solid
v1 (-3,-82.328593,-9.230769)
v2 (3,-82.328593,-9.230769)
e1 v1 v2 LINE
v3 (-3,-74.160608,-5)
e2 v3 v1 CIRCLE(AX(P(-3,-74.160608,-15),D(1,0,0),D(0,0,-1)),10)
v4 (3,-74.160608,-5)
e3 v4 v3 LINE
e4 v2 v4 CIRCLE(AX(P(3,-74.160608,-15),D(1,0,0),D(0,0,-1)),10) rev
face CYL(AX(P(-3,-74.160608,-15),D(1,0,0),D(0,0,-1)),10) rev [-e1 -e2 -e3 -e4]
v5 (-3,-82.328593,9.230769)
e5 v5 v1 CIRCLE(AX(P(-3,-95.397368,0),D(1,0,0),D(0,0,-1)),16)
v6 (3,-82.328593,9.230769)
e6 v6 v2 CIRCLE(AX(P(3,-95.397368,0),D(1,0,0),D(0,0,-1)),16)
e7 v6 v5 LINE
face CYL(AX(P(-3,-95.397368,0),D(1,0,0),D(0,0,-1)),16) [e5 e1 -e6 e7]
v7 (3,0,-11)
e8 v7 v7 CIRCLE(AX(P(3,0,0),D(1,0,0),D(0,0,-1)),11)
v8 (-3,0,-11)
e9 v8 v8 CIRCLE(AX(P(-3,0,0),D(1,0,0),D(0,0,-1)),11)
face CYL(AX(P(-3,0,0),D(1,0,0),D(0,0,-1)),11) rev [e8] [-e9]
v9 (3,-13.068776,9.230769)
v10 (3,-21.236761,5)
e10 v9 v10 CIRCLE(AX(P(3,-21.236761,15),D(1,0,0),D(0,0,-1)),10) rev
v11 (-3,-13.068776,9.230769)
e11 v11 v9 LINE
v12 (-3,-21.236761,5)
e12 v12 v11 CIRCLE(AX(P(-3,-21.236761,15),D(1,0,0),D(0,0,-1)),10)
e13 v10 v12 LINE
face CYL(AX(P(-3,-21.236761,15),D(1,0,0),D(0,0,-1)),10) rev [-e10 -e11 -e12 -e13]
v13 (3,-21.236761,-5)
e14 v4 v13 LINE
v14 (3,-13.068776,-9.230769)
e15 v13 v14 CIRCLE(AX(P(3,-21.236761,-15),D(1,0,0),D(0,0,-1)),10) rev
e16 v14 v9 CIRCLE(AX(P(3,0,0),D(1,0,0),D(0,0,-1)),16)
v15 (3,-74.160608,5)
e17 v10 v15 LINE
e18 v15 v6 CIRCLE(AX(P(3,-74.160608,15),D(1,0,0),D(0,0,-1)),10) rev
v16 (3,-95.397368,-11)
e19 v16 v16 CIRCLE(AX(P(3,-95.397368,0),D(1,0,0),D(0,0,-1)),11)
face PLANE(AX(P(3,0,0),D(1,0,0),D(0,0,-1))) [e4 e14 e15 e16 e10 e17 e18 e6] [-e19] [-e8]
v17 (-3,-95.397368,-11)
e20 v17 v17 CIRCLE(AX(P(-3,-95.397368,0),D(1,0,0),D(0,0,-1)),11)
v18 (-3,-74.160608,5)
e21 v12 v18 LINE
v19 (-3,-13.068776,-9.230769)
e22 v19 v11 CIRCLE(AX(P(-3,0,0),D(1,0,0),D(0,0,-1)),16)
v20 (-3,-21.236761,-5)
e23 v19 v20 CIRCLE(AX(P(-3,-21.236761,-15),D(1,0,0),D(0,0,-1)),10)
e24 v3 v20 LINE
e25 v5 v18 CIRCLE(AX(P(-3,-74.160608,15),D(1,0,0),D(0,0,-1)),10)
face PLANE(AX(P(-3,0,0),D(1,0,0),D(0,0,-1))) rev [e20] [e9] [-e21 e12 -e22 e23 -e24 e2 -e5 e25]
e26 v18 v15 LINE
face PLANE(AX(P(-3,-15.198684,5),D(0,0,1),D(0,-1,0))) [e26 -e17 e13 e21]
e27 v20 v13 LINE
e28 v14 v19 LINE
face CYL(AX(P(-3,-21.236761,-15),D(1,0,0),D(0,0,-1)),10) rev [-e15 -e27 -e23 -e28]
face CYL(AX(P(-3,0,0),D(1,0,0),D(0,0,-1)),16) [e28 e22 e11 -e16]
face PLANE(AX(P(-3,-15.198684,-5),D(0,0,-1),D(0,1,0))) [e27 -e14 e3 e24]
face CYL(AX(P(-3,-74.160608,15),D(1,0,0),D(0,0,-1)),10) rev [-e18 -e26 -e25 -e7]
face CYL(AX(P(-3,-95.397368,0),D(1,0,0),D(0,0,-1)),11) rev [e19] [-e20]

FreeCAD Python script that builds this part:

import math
import FreeCAD as App
import Part
import Sketcher
Q = App.Units.Quantity


def edges_at(feature, points):
    """Names of the edges that pass closest to the given points."""
    edges = feature.Shape.Edges
    near = lambda p: min(range(len(edges)), key=lambda i: edges[i].distToShape(Part.Vertex(*p))[0])
    return sorted({f"Edge{near(p) + 1}" for p in points})

doc = App.newDocument("Part")
body = doc.addObject("PartDesign::Body", "Body")

# Sketch on YZ plane
sketch1 = body.newObject("Sketcher::SketchObject", "Sketch")
sketch1.AttachmentSupport = (doc.getObject("YZ_Plane"), [""])
sketch1.MapMode = "FlatFace"
sketch1.addGeometry(Part.LineSegment(App.Vector(-15.198684, 5, 0), App.Vector(-80.198684, 5, 0)), False)
sketch1.addGeometry(Part.ArcOfCircle(Part.Circle(App.Vector(-95.397368, 0, 0), App.Vector(0, 0, 1), 16), math.radians(18.209957), math.radians(341.790043)), False)
sketch1.addGeometry(Part.LineSegment(App.Vector(-80.198684, -5, 0), App.Vector(-15.198684, -5, 0)), False)
sketch1.addGeometry(Part.ArcOfCircle(Part.Circle(App.Vector(0, 0, 0), App.Vector(0, 0, 1), 16), math.radians(-161.790043), math.radians(161.790043)), False)
sketch1.addGeometry(Part.Circle(App.Vector(-95.397368, 0, 0), App.Vector(0, 0, 1), 11), False)
sketch1.addGeometry(Part.Circle(App.Vector(0, 0, 0), App.Vector(0, 0, 1), 11), False)
sketch1.addConstraint(Sketcher.Constraint("Coincident", 0, 2, 1, 1))
sketch1.addConstraint(Sketcher.Constraint("Coincident", 1, 2, 2, 1))
sketch1.addConstraint(Sketcher.Constraint("Coincident", 2, 2, 3, 1))
sketch1.addConstraint(Sketcher.Constraint("Coincident", 3, 2, 0, 1))
sketch1.addConstraint(Sketcher.Constraint("Horizontal", 0))
sketch1.addConstraint(Sketcher.Constraint("Horizontal", 2))
sketch1.addConstraint(Sketcher.Constraint("Coincident", 3, 3, -1, 1))
sketch1.addConstraint(Sketcher.Constraint("Coincident", 5, 3, -1, 1))
sketch1.addConstraint(Sketcher.Constraint("Coincident", 4, 3, 1, 3))
sketch1.addConstraint(Sketcher.Constraint("Equal", 1, 3))
sketch1.addConstraint(Sketcher.Constraint("Equal", 4, 5))
sketch1.addConstraint(Sketcher.Constraint("Symmetric", 0, 2, 1, 2, -1))
sketch1.addConstraint(Sketcher.Constraint("Diameter", 4, Q("22 mm")))
sketch1.addConstraint(Sketcher.Constraint("Radius", 1, Q("16 mm")))
sketch1.addConstraint(Sketcher.Constraint("DistanceX", 0, 2, 0, 1, Q("65 mm")))
sketch1.addConstraint(Sketcher.Constraint("DistanceY", -1, 1, 0, 2, Q("5 mm")))
pad1 = body.newObject("PartDesign::Pad", "Pad")
pad1.Profile = sketch1
pad1.Type = "TwoLengths"
pad1.Length = 3
pad1.Length2 = 3
doc.recompute()

fillet = body.newObject("PartDesign::Fillet", "Fillet")
fillet.Base = (pad1, edges_at(pad1, [
    (0, -15.199, -5),
    (0, -80.199, -5),
    (0, -80.199, 5),
    (0, -15.199, 5),
]))
fillet.Radius = 10

doc.recompute()
